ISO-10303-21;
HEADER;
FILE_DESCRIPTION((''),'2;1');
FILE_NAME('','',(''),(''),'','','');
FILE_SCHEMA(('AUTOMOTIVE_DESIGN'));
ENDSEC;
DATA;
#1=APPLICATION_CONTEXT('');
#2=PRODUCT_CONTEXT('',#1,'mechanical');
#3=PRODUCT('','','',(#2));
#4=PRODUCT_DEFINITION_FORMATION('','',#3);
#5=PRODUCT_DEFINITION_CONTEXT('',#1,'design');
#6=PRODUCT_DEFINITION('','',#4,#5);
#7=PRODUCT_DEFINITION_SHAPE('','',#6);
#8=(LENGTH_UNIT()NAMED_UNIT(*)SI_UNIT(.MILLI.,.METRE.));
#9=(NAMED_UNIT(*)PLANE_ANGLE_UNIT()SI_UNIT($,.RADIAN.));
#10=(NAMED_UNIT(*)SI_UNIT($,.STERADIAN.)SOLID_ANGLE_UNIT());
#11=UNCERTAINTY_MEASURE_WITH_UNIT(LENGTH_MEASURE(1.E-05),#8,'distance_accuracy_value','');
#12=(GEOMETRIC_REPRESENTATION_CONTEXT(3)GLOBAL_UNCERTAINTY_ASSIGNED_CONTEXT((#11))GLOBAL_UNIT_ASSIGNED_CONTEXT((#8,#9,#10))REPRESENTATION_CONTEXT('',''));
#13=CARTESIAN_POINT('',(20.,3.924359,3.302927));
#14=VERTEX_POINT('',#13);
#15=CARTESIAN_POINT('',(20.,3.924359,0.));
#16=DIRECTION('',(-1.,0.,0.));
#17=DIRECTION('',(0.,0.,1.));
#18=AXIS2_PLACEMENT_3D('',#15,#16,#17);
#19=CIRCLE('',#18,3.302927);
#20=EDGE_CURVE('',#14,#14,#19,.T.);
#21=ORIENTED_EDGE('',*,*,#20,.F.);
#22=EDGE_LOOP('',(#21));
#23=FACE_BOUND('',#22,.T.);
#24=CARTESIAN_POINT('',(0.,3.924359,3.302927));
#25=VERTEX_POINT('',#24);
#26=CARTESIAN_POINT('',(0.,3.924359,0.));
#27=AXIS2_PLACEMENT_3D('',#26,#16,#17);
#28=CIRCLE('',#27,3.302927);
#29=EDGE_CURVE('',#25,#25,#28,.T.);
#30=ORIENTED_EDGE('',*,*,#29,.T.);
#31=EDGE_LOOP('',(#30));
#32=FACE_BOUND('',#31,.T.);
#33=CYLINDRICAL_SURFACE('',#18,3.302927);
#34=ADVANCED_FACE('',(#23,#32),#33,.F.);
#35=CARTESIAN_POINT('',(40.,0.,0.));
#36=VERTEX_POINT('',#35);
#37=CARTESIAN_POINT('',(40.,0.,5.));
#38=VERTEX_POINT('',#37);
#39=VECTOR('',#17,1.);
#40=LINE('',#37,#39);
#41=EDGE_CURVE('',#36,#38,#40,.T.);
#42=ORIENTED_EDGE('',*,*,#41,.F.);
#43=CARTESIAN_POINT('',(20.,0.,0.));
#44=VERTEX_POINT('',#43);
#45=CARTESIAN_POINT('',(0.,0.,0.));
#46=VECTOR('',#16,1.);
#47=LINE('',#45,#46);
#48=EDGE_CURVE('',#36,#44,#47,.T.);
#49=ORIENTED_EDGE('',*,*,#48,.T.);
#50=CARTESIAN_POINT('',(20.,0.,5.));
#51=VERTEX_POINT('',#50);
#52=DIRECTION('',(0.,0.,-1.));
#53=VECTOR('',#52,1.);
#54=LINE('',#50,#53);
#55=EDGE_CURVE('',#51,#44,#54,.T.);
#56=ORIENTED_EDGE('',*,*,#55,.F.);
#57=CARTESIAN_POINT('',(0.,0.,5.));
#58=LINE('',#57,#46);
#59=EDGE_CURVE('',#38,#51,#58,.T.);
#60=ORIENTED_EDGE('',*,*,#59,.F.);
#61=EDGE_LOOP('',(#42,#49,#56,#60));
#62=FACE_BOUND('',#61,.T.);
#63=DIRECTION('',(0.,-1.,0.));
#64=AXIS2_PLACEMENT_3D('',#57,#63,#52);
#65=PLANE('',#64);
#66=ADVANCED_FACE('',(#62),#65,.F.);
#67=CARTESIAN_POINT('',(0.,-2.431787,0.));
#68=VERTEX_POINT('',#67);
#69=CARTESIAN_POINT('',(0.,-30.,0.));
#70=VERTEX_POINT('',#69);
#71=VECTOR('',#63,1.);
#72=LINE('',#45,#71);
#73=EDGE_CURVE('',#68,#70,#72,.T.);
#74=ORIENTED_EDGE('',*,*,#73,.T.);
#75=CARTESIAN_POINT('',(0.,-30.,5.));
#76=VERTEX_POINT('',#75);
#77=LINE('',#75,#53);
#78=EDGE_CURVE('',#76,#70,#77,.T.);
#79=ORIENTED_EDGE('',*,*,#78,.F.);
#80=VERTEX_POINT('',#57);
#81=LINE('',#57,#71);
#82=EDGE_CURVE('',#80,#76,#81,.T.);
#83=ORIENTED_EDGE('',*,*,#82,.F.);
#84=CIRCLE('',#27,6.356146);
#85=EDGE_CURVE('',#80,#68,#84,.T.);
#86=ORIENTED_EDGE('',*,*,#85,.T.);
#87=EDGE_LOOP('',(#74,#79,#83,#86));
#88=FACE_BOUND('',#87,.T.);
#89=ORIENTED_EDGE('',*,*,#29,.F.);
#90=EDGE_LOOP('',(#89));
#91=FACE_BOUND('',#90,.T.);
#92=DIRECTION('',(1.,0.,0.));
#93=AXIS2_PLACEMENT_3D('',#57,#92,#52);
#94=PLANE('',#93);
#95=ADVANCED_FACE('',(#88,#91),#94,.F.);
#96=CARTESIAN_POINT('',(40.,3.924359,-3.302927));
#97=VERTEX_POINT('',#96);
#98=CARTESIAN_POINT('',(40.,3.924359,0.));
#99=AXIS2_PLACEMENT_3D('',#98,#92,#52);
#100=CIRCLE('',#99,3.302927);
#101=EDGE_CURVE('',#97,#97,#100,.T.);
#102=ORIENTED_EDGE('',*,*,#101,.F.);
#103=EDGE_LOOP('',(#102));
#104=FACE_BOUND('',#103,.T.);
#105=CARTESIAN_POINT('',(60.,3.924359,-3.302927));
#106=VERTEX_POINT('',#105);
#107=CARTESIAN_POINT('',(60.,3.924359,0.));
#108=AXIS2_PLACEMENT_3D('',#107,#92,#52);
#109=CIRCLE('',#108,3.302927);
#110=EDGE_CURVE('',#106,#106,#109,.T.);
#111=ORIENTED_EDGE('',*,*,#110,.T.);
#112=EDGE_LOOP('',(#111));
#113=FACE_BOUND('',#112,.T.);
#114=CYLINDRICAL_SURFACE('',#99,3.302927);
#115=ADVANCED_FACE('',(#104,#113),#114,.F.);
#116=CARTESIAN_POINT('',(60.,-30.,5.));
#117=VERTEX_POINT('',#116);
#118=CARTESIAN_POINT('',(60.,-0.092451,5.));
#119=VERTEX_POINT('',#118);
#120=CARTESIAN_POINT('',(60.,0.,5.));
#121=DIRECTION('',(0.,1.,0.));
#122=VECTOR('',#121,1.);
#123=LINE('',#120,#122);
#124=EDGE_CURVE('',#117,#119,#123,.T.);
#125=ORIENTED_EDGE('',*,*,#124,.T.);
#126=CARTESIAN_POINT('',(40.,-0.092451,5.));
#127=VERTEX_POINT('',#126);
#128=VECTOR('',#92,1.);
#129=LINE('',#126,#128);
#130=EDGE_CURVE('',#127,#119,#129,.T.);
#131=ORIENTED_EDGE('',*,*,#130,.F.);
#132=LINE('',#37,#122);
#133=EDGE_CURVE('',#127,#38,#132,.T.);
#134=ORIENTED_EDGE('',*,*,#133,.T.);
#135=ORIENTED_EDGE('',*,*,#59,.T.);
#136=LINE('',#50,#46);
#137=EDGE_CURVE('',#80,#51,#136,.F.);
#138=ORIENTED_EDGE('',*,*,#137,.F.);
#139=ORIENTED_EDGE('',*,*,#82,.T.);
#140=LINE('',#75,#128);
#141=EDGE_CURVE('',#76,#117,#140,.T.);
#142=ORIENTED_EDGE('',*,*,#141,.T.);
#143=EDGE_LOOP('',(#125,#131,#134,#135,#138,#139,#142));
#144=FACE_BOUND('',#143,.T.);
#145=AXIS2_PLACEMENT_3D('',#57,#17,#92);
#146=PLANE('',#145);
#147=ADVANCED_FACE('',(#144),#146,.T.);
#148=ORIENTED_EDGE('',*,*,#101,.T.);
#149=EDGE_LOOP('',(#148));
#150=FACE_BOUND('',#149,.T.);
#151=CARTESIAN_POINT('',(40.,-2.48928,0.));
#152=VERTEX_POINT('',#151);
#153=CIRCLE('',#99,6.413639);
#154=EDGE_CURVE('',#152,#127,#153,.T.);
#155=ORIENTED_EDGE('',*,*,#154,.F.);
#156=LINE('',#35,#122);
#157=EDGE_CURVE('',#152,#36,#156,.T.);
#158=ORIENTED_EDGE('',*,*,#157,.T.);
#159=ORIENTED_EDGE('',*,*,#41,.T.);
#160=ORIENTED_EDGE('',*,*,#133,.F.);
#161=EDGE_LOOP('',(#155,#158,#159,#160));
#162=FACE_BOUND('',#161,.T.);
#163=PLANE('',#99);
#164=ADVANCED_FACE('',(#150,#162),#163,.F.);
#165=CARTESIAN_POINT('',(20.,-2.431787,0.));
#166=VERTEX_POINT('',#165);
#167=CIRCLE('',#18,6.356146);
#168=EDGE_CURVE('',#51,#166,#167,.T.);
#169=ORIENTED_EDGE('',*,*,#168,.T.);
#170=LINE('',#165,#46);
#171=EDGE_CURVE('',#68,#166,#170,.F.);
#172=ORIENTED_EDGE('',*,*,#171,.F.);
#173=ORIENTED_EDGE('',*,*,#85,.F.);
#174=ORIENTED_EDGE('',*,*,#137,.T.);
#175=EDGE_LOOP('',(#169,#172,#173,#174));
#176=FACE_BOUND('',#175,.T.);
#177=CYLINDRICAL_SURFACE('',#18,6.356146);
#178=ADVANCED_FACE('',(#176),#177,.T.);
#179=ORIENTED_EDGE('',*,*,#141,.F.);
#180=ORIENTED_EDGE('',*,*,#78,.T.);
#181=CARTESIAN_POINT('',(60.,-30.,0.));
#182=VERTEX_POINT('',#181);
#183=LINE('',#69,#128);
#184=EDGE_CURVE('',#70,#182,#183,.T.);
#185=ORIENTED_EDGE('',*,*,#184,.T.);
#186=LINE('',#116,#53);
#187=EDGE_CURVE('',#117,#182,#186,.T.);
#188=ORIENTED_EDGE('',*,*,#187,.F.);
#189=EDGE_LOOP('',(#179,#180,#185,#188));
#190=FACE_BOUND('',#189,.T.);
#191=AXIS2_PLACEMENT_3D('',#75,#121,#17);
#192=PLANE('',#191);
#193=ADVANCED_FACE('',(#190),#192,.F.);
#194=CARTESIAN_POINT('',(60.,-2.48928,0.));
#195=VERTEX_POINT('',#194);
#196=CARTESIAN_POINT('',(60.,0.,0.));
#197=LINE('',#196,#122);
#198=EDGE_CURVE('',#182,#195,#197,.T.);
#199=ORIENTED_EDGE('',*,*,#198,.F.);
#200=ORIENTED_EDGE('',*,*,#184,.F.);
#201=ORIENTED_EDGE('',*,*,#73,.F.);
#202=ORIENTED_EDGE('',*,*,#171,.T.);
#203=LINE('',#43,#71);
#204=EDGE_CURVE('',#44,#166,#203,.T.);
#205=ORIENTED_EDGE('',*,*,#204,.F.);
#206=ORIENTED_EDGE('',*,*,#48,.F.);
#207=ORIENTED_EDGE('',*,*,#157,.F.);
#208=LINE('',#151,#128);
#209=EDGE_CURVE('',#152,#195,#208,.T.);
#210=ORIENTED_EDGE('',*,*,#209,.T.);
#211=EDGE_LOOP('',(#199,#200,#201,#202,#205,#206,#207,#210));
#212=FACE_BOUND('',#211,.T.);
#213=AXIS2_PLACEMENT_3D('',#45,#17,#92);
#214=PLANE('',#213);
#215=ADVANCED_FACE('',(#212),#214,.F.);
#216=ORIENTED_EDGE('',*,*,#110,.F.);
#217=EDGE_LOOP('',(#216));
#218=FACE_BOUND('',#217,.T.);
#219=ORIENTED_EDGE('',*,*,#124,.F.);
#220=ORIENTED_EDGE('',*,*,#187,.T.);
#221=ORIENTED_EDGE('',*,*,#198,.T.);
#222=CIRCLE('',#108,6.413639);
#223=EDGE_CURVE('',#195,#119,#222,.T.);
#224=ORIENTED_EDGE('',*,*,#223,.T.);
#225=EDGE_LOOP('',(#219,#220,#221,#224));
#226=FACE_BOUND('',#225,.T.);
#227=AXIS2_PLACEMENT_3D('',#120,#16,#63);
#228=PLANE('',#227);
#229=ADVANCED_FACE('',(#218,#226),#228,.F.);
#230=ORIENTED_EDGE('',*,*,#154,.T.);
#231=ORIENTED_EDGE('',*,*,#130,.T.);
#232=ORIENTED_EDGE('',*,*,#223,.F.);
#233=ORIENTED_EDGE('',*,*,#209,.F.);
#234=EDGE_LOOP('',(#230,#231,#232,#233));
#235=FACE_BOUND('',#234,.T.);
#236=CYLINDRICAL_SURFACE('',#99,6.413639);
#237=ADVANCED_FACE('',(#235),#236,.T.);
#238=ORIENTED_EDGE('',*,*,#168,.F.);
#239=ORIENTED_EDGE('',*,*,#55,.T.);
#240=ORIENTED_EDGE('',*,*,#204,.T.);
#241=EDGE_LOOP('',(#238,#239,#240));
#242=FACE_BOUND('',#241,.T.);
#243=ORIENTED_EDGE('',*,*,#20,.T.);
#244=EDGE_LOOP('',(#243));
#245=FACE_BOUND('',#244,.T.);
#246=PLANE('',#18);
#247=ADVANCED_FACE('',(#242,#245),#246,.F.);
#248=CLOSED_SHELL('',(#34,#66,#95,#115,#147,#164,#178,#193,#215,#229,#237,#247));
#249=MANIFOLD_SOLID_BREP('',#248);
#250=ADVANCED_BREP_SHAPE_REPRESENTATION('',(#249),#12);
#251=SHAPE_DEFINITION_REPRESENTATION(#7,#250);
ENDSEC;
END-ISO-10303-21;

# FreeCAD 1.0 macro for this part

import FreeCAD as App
import Part
import Sketcher

doc = App.newDocument("Part")
params = doc.addObject("Spreadsheet::Sheet", "Params")
for row, (alias, value) in enumerate([
    ("sketch1_width", "60 mm"),
    ("sketch1_height", "30 mm"),
    ("pad1_length", "5 mm"),
    ("pad2_length", "20 mm"),
    ("pad3_length", "20 mm"),
], start=1):
    params.set(f"A{row}", alias)
    params.set(f"B{row}", "=" + value)
    params.setAlias(f"B{row}", alias)

body = doc.addObject("PartDesign::Body", "Body")

sketch1 = body.newObject("Sketcher::SketchObject", "Sketch")
sketch1.AttachmentSupport = (doc.getObject("XY_Plane"), [""])
sketch1.MapMode = "FlatFace"
sketch1.addGeometry([
    Part.LineSegment(App.Vector(0, 0, 0), App.Vector(0, -30, 0)),
    Part.LineSegment(App.Vector(0, -30, 0), App.Vector(60, -30, 0)),
    Part.LineSegment(App.Vector(60, -30, 0), App.Vector(60, 0, 0)),
    Part.LineSegment(App.Vector(60, 0, 0), App.Vector(0, 0, 0)),
], False)
sketch1.addConstraint([
    Sketcher.Constraint("Coincident", 0, 2, 1, 1),
    Sketcher.Constraint("Coincident", 1, 2, 2, 1),
    Sketcher.Constraint("Coincident", 2, 2, 3, 1),
    Sketcher.Constraint("Coincident", 3, 2, 0, 1),
    Sketcher.Constraint("Vertical", 0),
    Sketcher.Constraint("Horizontal", 1),
    Sketcher.Constraint("Vertical", 2),
    Sketcher.Constraint("Horizontal", 3),
    Sketcher.Constraint("Coincident", 3, 2, -1, 1),
    Sketcher.Constraint("DistanceX", 1, 1, 1, 2, 60.0),
    Sketcher.Constraint("DistanceY", 0, 2, 0, 1, 30.0),
])
sketch1.setExpression("Constraints[9]", "Params.sketch1_width")
sketch1.setExpression("Constraints[10]", "Params.sketch1_height")
pad1 = body.newObject("PartDesign::Pad", "Pad")
pad1.Profile = sketch1
pad1.setExpression("Length", "Params.pad1_length")

sketch2 = body.newObject("Sketcher::SketchObject", "Sketch001")
sketch2.AttachmentSupport = (doc.getObject("YZ_Plane"), [""])
sketch2.MapMode = "FlatFace"
sketch2.AttachmentOffset = App.Placement(App.Vector(0, 0, 60), App.Rotation())
sketch2.addGeometry([
    Part.Circle(App.Vector(3.9, 0, 0), App.Vector(0, 0, 1), 6.4),
    Part.Circle(App.Vector(3.9, 0, 0), App.Vector(0, 0, 1), 3.3),
], False)
sketch2.addConstraint([
    Sketcher.Constraint("Coincident", 1, 3, 0, 3),
    Sketcher.Constraint("PointOnObject", 0, 3, -1),
    Sketcher.Constraint("Diameter", 0, 12.827279),
    Sketcher.Constraint("Diameter", 1, 6.605853),
    Sketcher.Constraint("DistanceX", -1, 1, 0, 3, 3.924359),
])
pad2 = body.newObject("PartDesign::Pad", "Pad001")
pad2.Profile = sketch2
pad2.setExpression("Length", "Params.pad2_length")
pad2.Reversed = True

sketch3 = body.newObject("Sketcher::SketchObject", "Sketch002")
sketch3.AttachmentSupport = (doc.getObject("YZ_Plane"), [""])
sketch3.MapMode = "FlatFace"
sketch3.addGeometry([
    Part.Circle(App.Vector(3.9, 0, 0), App.Vector(0, 0, 1), 6.4),
    Part.Circle(App.Vector(3.9, 0, 0), App.Vector(0, 0, 1), 3.3),
], False)
sketch3.addConstraint([
    Sketcher.Constraint("Coincident", 1, 3, 0, 3),
    Sketcher.Constraint("PointOnObject", 0, 3, -1),
    Sketcher.Constraint("Diameter", 0, 12.712293),
    Sketcher.Constraint("Diameter", 1, 6.605853),
    Sketcher.Constraint("DistanceX", -1, 1, 0, 3, 3.924359),
])
pad3 = body.newObject("PartDesign::Pad", "Pad002")
pad3.Profile = sketch3
pad3.setExpression("Length", "Params.pad3_length")

doc.recompute()
